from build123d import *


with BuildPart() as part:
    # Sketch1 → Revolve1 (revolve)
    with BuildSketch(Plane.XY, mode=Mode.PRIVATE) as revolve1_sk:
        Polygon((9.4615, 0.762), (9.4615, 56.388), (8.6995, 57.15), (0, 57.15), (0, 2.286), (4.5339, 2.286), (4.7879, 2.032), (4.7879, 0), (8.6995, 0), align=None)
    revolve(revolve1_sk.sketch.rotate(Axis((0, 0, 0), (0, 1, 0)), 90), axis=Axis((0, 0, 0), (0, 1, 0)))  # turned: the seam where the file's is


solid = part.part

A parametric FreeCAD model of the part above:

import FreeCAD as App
import Part
import Sketcher
from FreeCAD import Vector
Q = App.Units.Quantity


def add_polygon(sketch, points):
    """Adds a closed chain of lines whose ends are joined by coincident constraints."""
    first, n = sketch.GeometryCount, len(points)
    for a, b in zip(points, points[1:] + points[:1]):
        sketch.addGeometry(Part.LineSegment(App.Vector(*a, 0), App.Vector(*b, 0)), False)
    for i in range(n):
        sketch.addConstraint(Sketcher.Constraint("Coincident", first + i, 2, first + (i + 1) % n, 1))

doc = App.newDocument("Part")
params = doc.addObject("Spreadsheet::Sheet", "Params")
for row, (alias, value) in enumerate([
    ("sketch1_height", "2.19 in"),
    ("sketch1_height2", "2.16 in"),
    ("sketch1_height3", "0.08 in"),
    ("sketch1_width", "0.154 in"),
    ("revolution_angle", "360 deg"),
], start=1):
    params.set(f"A{row}", alias)
    params.set(f"B{row}", "=" + value)
    params.setAlias(f"B{row}", alias)

body = doc.addObject("PartDesign::Body", "Body")

sketch1 = doc.addObject("Sketcher::SketchObject", "Sketch")
body.addObject(sketch1)
sketch1.AttachmentSupport = (doc.XY_Plane, [""])
sketch1.MapMode = "FlatFace"
add_polygon(sketch1, [(9.46, 0.76), (9.46, 56.39), (8.7, 57.15), (0, 57.15), (0, 2.29), (4.53, 2.29), (4.79, 2.03), (4.79, 0), (8.7, 0)])
sketch1.addConstraint(Sketcher.Constraint("Vertical", 0))
sketch1.addConstraint(Sketcher.Constraint("Horizontal", 2))
sketch1.addConstraint(Sketcher.Constraint("Vertical", 3))
sketch1.addConstraint(Sketcher.Constraint("Horizontal", 4))
sketch1.addConstraint(Sketcher.Constraint("Vertical", 6))
sketch1.addConstraint(Sketcher.Constraint("Horizontal", 7))
sketch1.addConstraint(Sketcher.Constraint("PointOnObject", 2, 2, -2))
sketch1.addConstraint(Sketcher.Constraint("PointOnObject", 6, 2, -1))
sketch1.addConstraint(Sketcher.Constraint("Parallel", 1, 5))
sketch1.addConstraint(Sketcher.Constraint("Perpendicular", 5, 8))
sketch1.addConstraint(Sketcher.Constraint("Vertical", 1, 2, 7, 2))
sketch1.addConstraint(Sketcher.Constraint("Equal", 1, 8))
sketch1.addConstraint(Sketcher.Constraint("DistanceY", 0, 1, 0, 2, Q("2.19 in")))
sketch1.addConstraint(Sketcher.Constraint("DistanceY", 3, 2, 3, 1, Q("2.16 in")))
sketch1.addConstraint(Sketcher.Constraint("DistanceY", 6, 2, 6, 1, Q("0.08 in")))
sketch1.addConstraint(Sketcher.Constraint("DistanceX", 7, 1, 7, 2, Q("0.154 in")))
sketch1.addConstraint(Sketcher.Constraint("DistanceY", -1, 1, 0, 2, Q("2.22 in")))
sketch1.addConstraint(Sketcher.Constraint("DistanceX", 2, 2, 2, 1, Q("0.3425 in")))
sketch1.setExpression("Constraints[21]", "Params.sketch1_height")
sketch1.setExpression("Constraints[22]", "Params.sketch1_height2")
sketch1.setExpression("Constraints[23]", "Params.sketch1_height3")
sketch1.setExpression("Constraints[24]", "Params.sketch1_width")
revolution = doc.addObject("PartDesign::Revolution", "Revolution")
body.addObject(revolution)
revolution.Profile = sketch1
revolution.ReferenceAxis = (sketch1, ["V_Axis"])
revolution.setExpression("Angle", "Params.revolution_angle")

doc.recompute()
